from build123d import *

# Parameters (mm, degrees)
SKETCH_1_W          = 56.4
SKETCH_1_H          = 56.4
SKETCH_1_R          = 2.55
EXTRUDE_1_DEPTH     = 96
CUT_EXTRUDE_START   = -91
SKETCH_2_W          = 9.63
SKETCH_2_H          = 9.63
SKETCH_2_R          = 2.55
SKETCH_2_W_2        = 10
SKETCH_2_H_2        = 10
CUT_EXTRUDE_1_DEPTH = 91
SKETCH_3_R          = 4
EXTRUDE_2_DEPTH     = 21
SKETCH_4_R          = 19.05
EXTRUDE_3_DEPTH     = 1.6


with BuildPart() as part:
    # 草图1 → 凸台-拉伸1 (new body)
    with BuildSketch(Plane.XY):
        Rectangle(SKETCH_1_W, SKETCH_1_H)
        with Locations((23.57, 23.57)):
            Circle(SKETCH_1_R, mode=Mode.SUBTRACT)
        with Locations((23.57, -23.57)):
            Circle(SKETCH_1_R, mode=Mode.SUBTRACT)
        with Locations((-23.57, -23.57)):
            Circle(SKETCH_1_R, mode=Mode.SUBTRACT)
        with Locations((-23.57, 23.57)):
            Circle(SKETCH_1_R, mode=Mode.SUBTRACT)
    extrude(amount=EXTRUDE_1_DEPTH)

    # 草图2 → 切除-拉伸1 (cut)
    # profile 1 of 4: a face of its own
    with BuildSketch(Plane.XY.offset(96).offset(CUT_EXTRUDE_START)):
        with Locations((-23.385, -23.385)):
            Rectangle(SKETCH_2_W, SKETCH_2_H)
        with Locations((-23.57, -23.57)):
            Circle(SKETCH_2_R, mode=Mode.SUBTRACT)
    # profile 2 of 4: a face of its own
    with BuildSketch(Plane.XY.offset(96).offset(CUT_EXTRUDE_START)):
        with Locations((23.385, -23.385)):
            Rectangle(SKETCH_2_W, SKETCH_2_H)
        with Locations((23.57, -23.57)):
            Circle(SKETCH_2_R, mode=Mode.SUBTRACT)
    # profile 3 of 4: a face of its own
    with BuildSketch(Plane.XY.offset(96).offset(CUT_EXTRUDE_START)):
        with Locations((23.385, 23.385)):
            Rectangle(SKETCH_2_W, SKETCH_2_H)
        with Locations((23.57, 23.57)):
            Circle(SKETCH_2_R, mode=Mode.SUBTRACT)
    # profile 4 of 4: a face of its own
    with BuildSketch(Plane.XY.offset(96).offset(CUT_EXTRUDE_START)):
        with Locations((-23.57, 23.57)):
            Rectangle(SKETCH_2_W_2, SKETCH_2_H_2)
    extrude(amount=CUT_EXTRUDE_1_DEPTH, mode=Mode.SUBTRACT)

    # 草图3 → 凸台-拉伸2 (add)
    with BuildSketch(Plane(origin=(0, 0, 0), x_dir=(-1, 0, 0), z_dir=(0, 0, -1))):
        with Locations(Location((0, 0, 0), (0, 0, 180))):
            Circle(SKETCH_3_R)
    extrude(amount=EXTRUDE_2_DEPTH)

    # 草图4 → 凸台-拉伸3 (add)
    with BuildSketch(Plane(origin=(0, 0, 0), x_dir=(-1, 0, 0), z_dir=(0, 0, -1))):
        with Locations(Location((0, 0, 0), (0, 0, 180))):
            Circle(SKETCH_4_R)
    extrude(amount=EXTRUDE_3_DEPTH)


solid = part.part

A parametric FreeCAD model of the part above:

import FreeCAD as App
import Part
import Sketcher
from FreeCAD import Vector

doc = App.newDocument("Part")
params = doc.addObject("Spreadsheet::Sheet", "Params")
for row, (alias, value) in enumerate([
    ("sketch1_diameter", "5.1 mm"),
    ("sketch1_width", "56.4 mm"),
    ("pad1_length", "96 mm"),
    ("sketch2_diameter", "5.1 mm"),
    ("sketch2_width", "10 mm"),
    ("sketch2_width2", "9.63 mm"),
    ("pocket1_length", "91 mm"),
    ("sketch3_diameter", "8 mm"),
    ("pad2_length", "21 mm"),
    ("sketch4_diameter", "38.1 mm"),
    ("pad3_length", "1.6 mm"),
], start=1):
    params.set(f"A{row}", alias)
    params.set(f"B{row}", "=" + value)
    params.setAlias(f"B{row}", alias)

body = doc.addObject("PartDesign::Body", "Body")

# Sketch on XY plane
sketch1 = body.newObject("Sketcher::SketchObject", "Sketch")
sketch1.AttachmentSupport = (doc.getObject("XY_Plane"), [""])
sketch1.MapMode = "FlatFace"
sketch1.addGeometry([
    Part.LineSegment(Vector(-28.2, 28.2, 0), Vector(-28.2, -28.2, 0)),  # 0
    Part.LineSegment(Vector(-28.2, -28.2, 0), Vector(28.2, -28.2, 0)),  # 1
    Part.LineSegment(Vector(28.2, -28.2, 0), Vector(28.2, 28.2, 0)),  # 2
    Part.LineSegment(Vector(28.2, 28.2, 0), Vector(-28.2, 28.2, 0)),  # 3
    Part.Circle(Vector(-23.6, -23.6, 0), Vector(0, 0, 1), 2.5),  # 4
    Part.Circle(Vector(23.6, -23.6, 0), Vector(0, 0, 1), 2.5),  # 5
    Part.Circle(Vector(-23.6, 23.6, 0), Vector(0, 0, 1), 2.5),  # 6
    Part.Circle(Vector(23.6, 23.6, 0), Vector(0, 0, 1), 2.5),  # 7
], False)
sketch1.addConstraint([
    Sketcher.Constraint("Coincident", 0, 2, 1, 1),
    Sketcher.Constraint("Coincident", 1, 2, 2, 1),
    Sketcher.Constraint("Coincident", 2, 2, 3, 1),
    Sketcher.Constraint("Coincident", 3, 2, 0, 1),
    Sketcher.Constraint("Vertical", 0),
    Sketcher.Constraint("Horizontal", 1),
    Sketcher.Constraint("Vertical", 2),
    Sketcher.Constraint("Horizontal", 3),
    Sketcher.Constraint("Equal", 4, 5),
    Sketcher.Constraint("Equal", 5, 6),
    Sketcher.Constraint("Equal", 6, 7),
    Sketcher.Constraint("Symmetric", 5, 3, 6, 3, -1, 1),
    Sketcher.Constraint("Symmetric", 4, 3, 7, 3, -1, 1),
    Sketcher.Constraint("Symmetric", 0, 2, 2, 2, -1, 1),
    Sketcher.Constraint("Symmetric", 4, 3, 5, 3, -2),
    Sketcher.Constraint("Equal", 3, 0),
    Sketcher.Constraint("Diameter", 4, 5.1),
    Sketcher.Constraint("DistanceX", 1, 1, 1, 2, 56.4),
    Sketcher.Constraint("DistanceX", 4, 3, -1, 1, 23.57),
    Sketcher.Constraint("DistanceY", 4, 3, -1, 1, 23.57),
])
sketch1.setExpression("Constraints[16]", "Params.sketch1_diameter")
sketch1.setExpression("Constraints[17]", "Params.sketch1_width")
pad1 = body.newObject("PartDesign::Pad", "Pad")
pad1.Profile = sketch1
pad1.setExpression("Length", "Params.pad1_length")

# Sketch on XY plane
sketch2 = body.newObject("Sketcher::SketchObject", "Sketch001")
sketch2.AttachmentSupport = (doc.getObject("XY_Plane"), [""])
sketch2.MapMode = "FlatFace"
sketch2.AttachmentOffset = App.Placement(Vector(0, 0, 5), App.Rotation())
sketch2.addGeometry([
    Part.LineSegment(Vector(-28.2, -18.6, 0), Vector(-28.2, -28.2, 0)),  # 0
    Part.LineSegment(Vector(-28.2, -28.2, 0), Vector(-18.6, -28.2, 0)),  # 1
    Part.LineSegment(Vector(-18.6, -28.2, 0), Vector(-18.6, -18.6, 0)),  # 2
    Part.LineSegment(Vector(-18.6, -18.6, 0), Vector(-28.2, -18.6, 0)),  # 3
    Part.Circle(Vector(-23.6, -23.6, 0), Vector(0, 0, 1), 2.5),  # 4
    Part.LineSegment(Vector(18.6, -18.6, 0), Vector(18.6, -28.2, 0)),  # 5
    Part.LineSegment(Vector(18.6, -28.2, 0), Vector(28.2, -28.2, 0)),  # 6
    Part.LineSegment(Vector(28.2, -28.2, 0), Vector(28.2, -18.6, 0)),  # 7
    Part.LineSegment(Vector(28.2, -18.6, 0), Vector(18.6, -18.6, 0)),  # 8
    Part.Circle(Vector(23.6, -23.6, 0), Vector(0, 0, 1), 2.5),  # 9
    Part.LineSegment(Vector(18.6, 28.2, 0), Vector(18.6, 18.6, 0)),  # 10
    Part.LineSegment(Vector(18.6, 18.6, 0), Vector(28.2, 18.6, 0)),  # 11
    Part.LineSegment(Vector(28.2, 18.6, 0), Vector(28.2, 28.2, 0)),  # 12
    Part.LineSegment(Vector(28.2, 28.2, 0), Vector(18.6, 28.2, 0)),  # 13
    Part.Circle(Vector(23.6, 23.6, 0), Vector(0, 0, 1), 2.5),  # 14
    Part.LineSegment(Vector(-28.6, 28.6, 0), Vector(-28.6, 18.6, 0)),  # 15
    Part.LineSegment(Vector(-28.6, 18.6, 0), Vector(-18.6, 18.6, 0)),  # 16
    Part.LineSegment(Vector(-18.6, 18.6, 0), Vector(-18.6, 28.6, 0)),  # 17
    Part.LineSegment(Vector(-18.6, 28.6, 0), Vector(-28.6, 28.6, 0)),  # 18
], False)
sketch2.addConstraint([
    Sketcher.Constraint("Coincident", 0, 2, 1, 1),
    Sketcher.Constraint("Coincident", 1, 2, 2, 1),
    Sketcher.Constraint("Coincident", 2, 2, 3, 1),
    Sketcher.Constraint("Coincident", 3, 2, 0, 1),
    Sketcher.Constraint("Coincident", 5, 2, 6, 1),
    Sketcher.Constraint("Coincident", 6, 2, 7, 1),
    Sketcher.Constraint("Coincident", 7, 2, 8, 1),
    Sketcher.Constraint("Coincident", 8, 2, 5, 1),
    Sketcher.Constraint("Coincident", 10, 2, 11, 1),
    Sketcher.Constraint("Coincident", 11, 2, 12, 1),
    Sketcher.Constraint("Coincident", 12, 2, 13, 1),
    Sketcher.Constraint("Coincident", 13, 2, 10, 1),
    Sketcher.Constraint("Coincident", 15, 2, 16, 1),
    Sketcher.Constraint("Coincident", 16, 2, 17, 1),
    Sketcher.Constraint("Coincident", 17, 2, 18, 1),
    Sketcher.Constraint("Coincident", 18, 2, 15, 1),
    Sketcher.Constraint("Vertical", 0),
    Sketcher.Constraint("Horizontal", 1),
    Sketcher.Constraint("Vertical", 2),
    Sketcher.Constraint("Horizontal", 3),
    Sketcher.Constraint("Vertical", 5),
    Sketcher.Constraint("Horizontal", 6),
    Sketcher.Constraint("Vertical", 7),
    Sketcher.Constraint("Horizontal", 8),
    Sketcher.Constraint("Vertical", 10),
    Sketcher.Constraint("Horizontal", 11),
    Sketcher.Constraint("Vertical", 12),
    Sketcher.Constraint("Horizontal", 13),
    Sketcher.Constraint("Vertical", 15),
    Sketcher.Constraint("Horizontal", 16),
    Sketcher.Constraint("Vertical", 17),
    Sketcher.Constraint("Horizontal", 18),
    Sketcher.Constraint("Equal", 4, 9),
    Sketcher.Constraint("Equal", 9, 14),
    Sketcher.Constraint("Symmetric", 4, 3, 14, 3, -1, 1),
    Sketcher.Constraint("Symmetric", 2, 2, 10, 2, -1, 1),
    Sketcher.Constraint("Symmetric", 0, 2, 12, 2, -1, 1),
    Sketcher.Constraint("Symmetric", 8, 2, 16, 2, -1, 1),
    Sketcher.Constraint("Symmetric", 4, 3, 9, 3, -2),
    Sketcher.Constraint("Symmetric", 1, 2, 5, 2, -2),
    Sketcher.Constraint("Symmetric", 3, 2, 7, 2, -2),
    Sketcher.Constraint("Equal", 13, 0),
    Sketcher.Constraint("Equal", 18, 15),
    Sketcher.Constraint("Diameter", 4, 5.1),
    Sketcher.Constraint("DistanceX", 16, 1, 16, 2, 10.0),
    Sketcher.Constraint("DistanceX", 4, 3, 1, 2, 5.0),
    Sketcher.Constraint("DistanceY", 4, 3, 2, 2, 5.0),
    Sketcher.Constraint("DistanceX", 1, 1, 1, 2, 9.63),
    Sketcher.Constraint("DistanceX", 0, 2, -1, 1, 28.2),
    Sketcher.Constraint("DistanceY", 0, 2, -1, 1, 28.2),
])
sketch2.setExpression("Constraints[43]", "Params.sketch2_diameter")
sketch2.setExpression("Constraints[44]", "Params.sketch2_width")
sketch2.setExpression("Constraints[47]", "Params.sketch2_width2")
pocket1 = body.newObject("PartDesign::Pocket", "Pocket")
pocket1.Profile = sketch2
pocket1.setExpression("Length", "Params.pocket1_length")
pocket1.Reversed = True

# Sketch on XY plane
sketch3 = body.newObject("Sketcher::SketchObject", "Sketch002")
sketch3.AttachmentSupport = (doc.getObject("XY_Plane"), [""])
sketch3.MapMode = "FlatFace"
sketch3.addGeometry(Part.Circle(Vector(0, 0, 0), Vector(0, 0, 1), 4), False)
sketch3.addConstraint([
    Sketcher.Constraint("Coincident", 0, 3, -1, 1),
    Sketcher.Constraint("Diameter", 0, 8.0),
])
sketch3.setExpression("Constraints[1]", "Params.sketch3_diameter")
pad2 = body.newObject("PartDesign::Pad", "Pad001")
pad2.Profile = sketch3
pad2.setExpression("Length", "Params.pad2_length")
pad2.Reversed = True

# Sketch on XY plane
sketch4 = body.newObject("Sketcher::SketchObject", "Sketch003")
sketch4.AttachmentSupport = (doc.getObject("XY_Plane"), [""])
sketch4.MapMode = "FlatFace"
sketch4.addGeometry(Part.Circle(Vector(0, 0, 0), Vector(0, 0, 1), 19), False)
sketch4.addConstraint([
    Sketcher.Constraint("Coincident", 0, 3, -1, 1),
    Sketcher.Constraint("Diameter", 0, 38.1),
])
sketch4.setExpression("Constraints[1]", "Params.sketch4_diameter")
pad3 = body.newObject("PartDesign::Pad", "Pad002")
pad3.Profile = sketch4
pad3.setExpression("Length", "Params.pad3_length")
pad3.Reversed = True

doc.recompute()
